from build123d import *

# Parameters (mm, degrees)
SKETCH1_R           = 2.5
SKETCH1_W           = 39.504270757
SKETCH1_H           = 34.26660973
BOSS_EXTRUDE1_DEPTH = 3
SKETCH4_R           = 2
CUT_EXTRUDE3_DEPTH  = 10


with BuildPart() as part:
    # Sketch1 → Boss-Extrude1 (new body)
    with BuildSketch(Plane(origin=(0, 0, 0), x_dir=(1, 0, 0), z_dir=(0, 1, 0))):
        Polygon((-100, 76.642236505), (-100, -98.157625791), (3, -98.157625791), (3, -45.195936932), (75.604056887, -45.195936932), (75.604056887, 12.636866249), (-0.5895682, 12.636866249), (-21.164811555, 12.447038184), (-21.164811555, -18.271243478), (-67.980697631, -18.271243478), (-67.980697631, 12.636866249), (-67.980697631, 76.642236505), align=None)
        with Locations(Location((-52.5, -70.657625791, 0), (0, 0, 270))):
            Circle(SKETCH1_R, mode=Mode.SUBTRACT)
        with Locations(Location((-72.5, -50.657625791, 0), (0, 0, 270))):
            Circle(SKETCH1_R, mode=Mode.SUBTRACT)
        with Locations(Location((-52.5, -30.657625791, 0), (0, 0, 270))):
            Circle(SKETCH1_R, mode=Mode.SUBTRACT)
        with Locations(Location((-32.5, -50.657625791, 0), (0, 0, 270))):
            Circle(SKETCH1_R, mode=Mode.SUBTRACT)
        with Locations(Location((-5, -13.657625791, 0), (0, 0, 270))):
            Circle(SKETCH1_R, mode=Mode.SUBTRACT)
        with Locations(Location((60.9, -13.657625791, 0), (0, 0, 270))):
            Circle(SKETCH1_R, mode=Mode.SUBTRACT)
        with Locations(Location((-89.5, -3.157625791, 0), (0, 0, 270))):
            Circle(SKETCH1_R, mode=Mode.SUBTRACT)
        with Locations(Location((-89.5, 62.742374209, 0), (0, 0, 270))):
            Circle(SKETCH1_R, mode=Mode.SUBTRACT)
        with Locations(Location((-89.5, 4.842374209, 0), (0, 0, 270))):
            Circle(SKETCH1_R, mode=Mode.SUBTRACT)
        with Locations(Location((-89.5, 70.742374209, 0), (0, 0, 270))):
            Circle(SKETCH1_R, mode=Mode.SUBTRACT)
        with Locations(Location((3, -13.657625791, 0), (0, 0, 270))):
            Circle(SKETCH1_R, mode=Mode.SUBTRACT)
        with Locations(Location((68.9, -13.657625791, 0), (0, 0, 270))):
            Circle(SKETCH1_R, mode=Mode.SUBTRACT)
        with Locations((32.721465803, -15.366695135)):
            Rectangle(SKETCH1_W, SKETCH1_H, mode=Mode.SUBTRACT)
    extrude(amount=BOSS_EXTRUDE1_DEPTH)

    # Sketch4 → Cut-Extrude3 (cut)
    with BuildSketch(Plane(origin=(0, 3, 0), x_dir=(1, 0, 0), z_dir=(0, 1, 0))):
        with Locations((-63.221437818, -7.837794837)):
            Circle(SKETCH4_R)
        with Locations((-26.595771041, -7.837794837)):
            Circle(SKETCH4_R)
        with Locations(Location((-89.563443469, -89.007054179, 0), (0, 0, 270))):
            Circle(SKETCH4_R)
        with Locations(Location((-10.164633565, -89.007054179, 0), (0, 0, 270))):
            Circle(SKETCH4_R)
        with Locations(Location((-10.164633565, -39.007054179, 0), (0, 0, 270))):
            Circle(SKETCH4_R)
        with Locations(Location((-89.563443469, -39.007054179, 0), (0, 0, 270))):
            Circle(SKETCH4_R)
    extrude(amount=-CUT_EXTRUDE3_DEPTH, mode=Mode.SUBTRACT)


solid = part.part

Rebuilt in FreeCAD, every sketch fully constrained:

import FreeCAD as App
import Part
import Sketcher

V = App.Vector

doc = App.newDocument("Part")
body = doc.addObject("PartDesign::Body", "Body")

sketch1 = body.newObject("Sketcher::SketchObject", "Sketch")
sketch1.AttachmentSupport = (doc.getObject("XZ_Plane"), [""])
sketch1.MapMode = "FlatFace"
sketch1.addGeometry(Part.LineSegment(V(-100, -76.642237, 0), V(-100, 98.157626, 0)), False)
sketch1.addGeometry(Part.LineSegment(V(-100, 98.157626, 0), V(3, 98.157626, 0)), False)
sketch1.addGeometry(Part.LineSegment(V(3, 98.157626, 0), V(3, 45.195937, 0)), False)
sketch1.addGeometry(Part.LineSegment(V(3, 45.195937, 0), V(75.604057, 45.195937, 0)), False)
sketch1.addGeometry(Part.LineSegment(V(75.604057, 45.195937, 0), V(75.604057, -12.636866, 0)), False)
sketch1.addGeometry(Part.LineSegment(V(75.604057, -12.636866, 0), V(-0.589568, -12.636866, 0)), False)
sketch1.addGeometry(Part.LineSegment(V(-0.589568, -12.636866, 0), V(-21.164812, -12.447038, 0)), False)
sketch1.addGeometry(Part.LineSegment(V(-21.164812, -12.447038, 0), V(-21.164812, 18.271243, 0)), False)
sketch1.addGeometry(Part.LineSegment(V(-21.164812, 18.271243, 0), V(-67.980698, 18.271243, 0)), False)
sketch1.addGeometry(Part.LineSegment(V(-67.980698, 18.271243, 0), V(-67.980698, -76.642237, 0)), False)
sketch1.addGeometry(Part.LineSegment(V(-67.980698, -76.642237, 0), V(-100, -76.642237, 0)), False)
sketch1.addGeometry(Part.Circle(V(-52.5, 70.657626, 0), V(0, 0, 1), 2.5), False)
sketch1.addGeometry(Part.Circle(V(-72.5, 50.657626, 0), V(0, 0, 1), 2.5), False)
sketch1.addGeometry(Part.Circle(V(-32.5, 50.657626, 0), V(0, 0, 1), 2.5), False)
sketch1.addGeometry(Part.Circle(V(-52.5, 30.657626, 0), V(0, 0, 1), 2.5), False)
sketch1.addGeometry(Part.Circle(V(-89.5, 3.157626, 0), V(0, 0, 1), 2.5), False)
sketch1.addGeometry(Part.Circle(V(-5, 13.657626, 0), V(0, 0, 1), 2.5), False)
sketch1.addGeometry(Part.Circle(V(3, 13.657626, 0), V(0, 0, 1), 2.5), False)
sketch1.addGeometry(Part.LineSegment(V(52.473601, 32.5, 0), V(12.96933, 32.5, 0)), False)
sketch1.addGeometry(Part.LineSegment(V(12.96933, 32.5, 0), V(12.96933, -1.76661, 0)), False)
sketch1.addGeometry(Part.LineSegment(V(12.96933, -1.76661, 0), V(52.473601, -1.76661, 0)), False)
sketch1.addGeometry(Part.LineSegment(V(52.473601, -1.76661, 0), V(52.473601, 32.5, 0)), False)
sketch1.addGeometry(Part.Circle(V(60.9, 13.657626, 0), V(0, 0, 1), 2.5), False)
sketch1.addGeometry(Part.Circle(V(68.9, 13.657626, 0), V(0, 0, 1), 2.5), False)
sketch1.addGeometry(Part.Circle(V(-89.5, -4.842374, 0), V(0, 0, 1), 2.5), False)
sketch1.addGeometry(Part.Circle(V(-89.5, -62.742374, 0), V(0, 0, 1), 2.5), False)
sketch1.addGeometry(Part.Circle(V(-89.5, -70.742374, 0), V(0, 0, 1), 2.5), False)
sketch1.addConstraint(Sketcher.Constraint("Coincident", 0, 2, 1, 1))
sketch1.addConstraint(Sketcher.Constraint("Coincident", 1, 2, 2, 1))
sketch1.addConstraint(Sketcher.Constraint("Coincident", 2, 2, 3, 1))
sketch1.addConstraint(Sketcher.Constraint("Coincident", 3, 2, 4, 1))
sketch1.addConstraint(Sketcher.Constraint("Coincident", 4, 2, 5, 1))
sketch1.addConstraint(Sketcher.Constraint("Coincident", 5, 2, 6, 1))
sketch1.addConstraint(Sketcher.Constraint("Coincident", 6, 2, 7, 1))
sketch1.addConstraint(Sketcher.Constraint("Coincident", 7, 2, 8, 1))
sketch1.addConstraint(Sketcher.Constraint("Coincident", 8, 2, 9, 1))
sketch1.addConstraint(Sketcher.Constraint("Coincident", 9, 2, 10, 1))
sketch1.addConstraint(Sketcher.Constraint("Coincident", 10, 2, 0, 1))
sketch1.addConstraint(Sketcher.Constraint("Coincident", 18, 2, 19, 1))
sketch1.addConstraint(Sketcher.Constraint("Coincident", 19, 2, 20, 1))
sketch1.addConstraint(Sketcher.Constraint("Coincident", 20, 2, 21, 1))
sketch1.addConstraint(Sketcher.Constraint("Coincident", 21, 2, 18, 1))
sketch1.addConstraint(Sketcher.Constraint("Vertical", 0))
sketch1.addConstraint(Sketcher.Constraint("Horizontal", 1))
sketch1.addConstraint(Sketcher.Constraint("Vertical", 2))
sketch1.addConstraint(Sketcher.Constraint("Horizontal", 3))
sketch1.addConstraint(Sketcher.Constraint("Vertical", 4))
sketch1.addConstraint(Sketcher.Constraint("Horizontal", 5))
sketch1.addConstraint(Sketcher.Constraint("Vertical", 7))
sketch1.addConstraint(Sketcher.Constraint("Horizontal", 8))
sketch1.addConstraint(Sketcher.Constraint("Vertical", 9))
sketch1.addConstraint(Sketcher.Constraint("Horizontal", 10))
sketch1.addConstraint(Sketcher.Constraint("Horizontal", 18))
sketch1.addConstraint(Sketcher.Constraint("Vertical", 19))
sketch1.addConstraint(Sketcher.Constraint("Horizontal", 20))
sketch1.addConstraint(Sketcher.Constraint("Vertical", 21))
sketch1.addConstraint(Sketcher.Constraint("Equal", 11, 12))
sketch1.addConstraint(Sketcher.Constraint("Equal", 12, 13))
sketch1.addConstraint(Sketcher.Constraint("Equal", 13, 14))
sketch1.addConstraint(Sketcher.Constraint("Equal", 14, 15))
sketch1.addConstraint(Sketcher.Constraint("Equal", 15, 16))
sketch1.addConstraint(Sketcher.Constraint("Equal", 16, 17))
sketch1.addConstraint(Sketcher.Constraint("Equal", 17, 22))
sketch1.addConstraint(Sketcher.Constraint("Equal", 22, 23))
sketch1.addConstraint(Sketcher.Constraint("Equal", 23, 24))
sketch1.addConstraint(Sketcher.Constraint("Equal", 24, 25))
sketch1.addConstraint(Sketcher.Constraint("Equal", 25, 26))
sketch1.addConstraint(Sketcher.Constraint("Horizontal", 12, 3, 13, 3))
sketch1.addConstraint(Sketcher.Constraint("Horizontal", 16, 3, 17, 3))
sketch1.addConstraint(Sketcher.Constraint("Horizontal", 17, 3, 22, 3))
sketch1.addConstraint(Sketcher.Constraint("Horizontal", 22, 3, 23, 3))
sketch1.addConstraint(Sketcher.Constraint("Vertical", 11, 3, 14, 3))
sketch1.addConstraint(Sketcher.Constraint("Vertical", 15, 3, 24, 3))
sketch1.addConstraint(Sketcher.Constraint("Vertical", 24, 3, 25, 3))
sketch1.addConstraint(Sketcher.Constraint("Vertical", 25, 3, 26, 3))
sketch1.addConstraint(Sketcher.Constraint("Vertical", 17, 3, 1, 2))
sketch1.addConstraint(Sketcher.Constraint("Diameter", 11, 5.0))
sketch1.addConstraint(Sketcher.Constraint("DistanceX", 1, 1, 1, 2, 103.0))
sketch1.addConstraint(Sketcher.Constraint("DistanceX", 16, 3, -1, 1, 5.0))
sketch1.addConstraint(Sketcher.Constraint("DistanceX", -1, 1, 17, 3, 3.0))
sketch1.addConstraint(Sketcher.Constraint("DistanceX", 12, 3, 11, 3, 20.0))
sketch1.addConstraint(Sketcher.Constraint("DistanceY", 12, 3, 11, 3, 20.0))
sketch1.addConstraint(Sketcher.Constraint("DistanceX", 11, 3, 13, 3, 20.0))
sketch1.addConstraint(Sketcher.Constraint("DistanceY", 14, 3, 12, 3, 20.0))
sketch1.addConstraint(Sketcher.Constraint("DistanceX", 15, 3, 14, 3, 37.0))
sketch1.addConstraint(Sketcher.Constraint("DistanceY", 16, 3, 13, 3, 37.0))
sketch1.addConstraint(Sketcher.Constraint("DistanceX", 22, 3, 23, 3, 8.0))
sketch1.addConstraint(Sketcher.Constraint("DistanceY", 24, 3, 15, 3, 8.0))
sketch1.addConstraint(Sketcher.Constraint("DistanceY", 26, 3, 25, 3, 8.0))
sketch1.addConstraint(Sketcher.Constraint("DistanceY", 15, 3, 0, 2, 95.0))
sketch1.addConstraint(Sketcher.Constraint("DistanceX", 11, 3, -1, 1, 52.5))
sketch1.addConstraint(Sketcher.Constraint("DistanceX", -1, 1, 22, 3, 60.9))
sketch1.addConstraint(Sketcher.Constraint("DistanceY", -1, 1, 18, 2, 32.5))
sketch1.addConstraint(Sketcher.Constraint("DistanceY", 15, 3, 14, 3, 27.5))
sketch1.addConstraint(Sketcher.Constraint("DistanceY", 25, 3, 24, 3, 57.9))
sketch1.addConstraint(Sketcher.Constraint("DistanceX", 18, 2, 18, 1, 39.504271))
sketch1.addConstraint(Sketcher.Constraint("DistanceY", 2, 2, 2, 1, 52.961689))
sketch1.addConstraint(Sketcher.Constraint("DistanceY", 7, 1, 7, 2, 30.718282))
sketch1.addConstraint(Sketcher.Constraint("DistanceY", 9, 2, 9, 1, 94.91348))
sketch1.addConstraint(Sketcher.Constraint("DistanceY", 19, 2, 19, 1, 34.26661))
sketch1.addConstraint(Sketcher.Constraint("DistanceX", -1, 1, 20, 2, 52.473601))
sketch1.addConstraint(Sketcher.Constraint("DistanceX", 5, 2, 18, 2, 13.558899))
sketch1.addConstraint(Sketcher.Constraint("Distance", 6, 20.576119))
sketch1.addConstraint(Sketcher.Constraint("DistanceX", 3, 1, 3, 2, 72.604057))
sketch1.addConstraint(Sketcher.Constraint("DistanceX", 8, 2, 8, 1, 46.815886))
sketch1.addConstraint(Sketcher.Constraint("DistanceX", 10, 2, 10, 1, 32.019302))
sketch1.addConstraint(Sketcher.Constraint("DistanceY", 0, 1, 0, 2, 174.799862))
sketch1.addConstraint(Sketcher.Constraint("DistanceY", 6, 2, -1, 1, 12.447038))
pad1 = body.newObject("PartDesign::Pad", "Pad")
pad1.Profile = sketch1
pad1.Length = 3
pad1.Reversed = True

sketch2 = body.newObject("Sketcher::SketchObject", "Sketch001")
sketch2.AttachmentSupport = (doc.getObject("XZ_Plane"), [""])
sketch2.MapMode = "FlatFace"
sketch2.AttachmentOffset = App.Placement(V(0, 0, -3), App.Rotation())
sketch2.addGeometry(Part.Circle(V(-63.2, 7.8, 0), V(0, 0, 1), 2), False)
sketch2.addGeometry(Part.Circle(V(-26.6, 7.8, 0), V(0, 0, 1), 2), False)
sketch2.addGeometry(Part.Circle(V(-89.6, 89, 0), V(0, 0, 1), 2), False)
sketch2.addGeometry(Part.Circle(V(-10.2, 89, 0), V(0, 0, 1), 2), False)
sketch2.addGeometry(Part.Circle(V(-10.2, 39, 0), V(0, 0, 1), 2), False)
sketch2.addGeometry(Part.Circle(V(-89.6, 39, 0), V(0, 0, 1), 2), False)
sketch2.addConstraint(Sketcher.Constraint("Equal", 0, 1))
sketch2.addConstraint(Sketcher.Constraint("Equal", 1, 2))
sketch2.addConstraint(Sketcher.Constraint("Equal", 2, 3))
sketch2.addConstraint(Sketcher.Constraint("Equal", 3, 4))
sketch2.addConstraint(Sketcher.Constraint("Equal", 4, 5))
sketch2.addConstraint(Sketcher.Constraint("Horizontal", 0, 3, 1, 3))
sketch2.addConstraint(Sketcher.Constraint("Horizontal", 2, 3, 3, 3))
sketch2.addConstraint(Sketcher.Constraint("Horizontal", 4, 3, 5, 3))
sketch2.addConstraint(Sketcher.Constraint("Vertical", 3, 3, 4, 3))
sketch2.addConstraint(Sketcher.Constraint("Vertical", 2, 3, 5, 3))
sketch2.addConstraint(Sketcher.Constraint("Diameter", 0, 4.0))
sketch2.addConstraint(Sketcher.Constraint("DistanceY", 4, 3, 3, 3, 50.0))
sketch2.addConstraint(Sketcher.Constraint("DistanceX", 1, 3, -1, 1, 26.595771))
sketch2.addConstraint(Sketcher.Constraint("DistanceY", 0, 3, 2, 3, 81.169259))
sketch2.addConstraint(Sketcher.Constraint("DistanceX", 2, 3, 3, 3, 79.39881))
sketch2.addConstraint(Sketcher.Constraint("DistanceX", 0, 3, -1, 1, 63.221438))
sketch2.addConstraint(Sketcher.Constraint("DistanceY", -1, 1, 0, 3, 7.837795))
sketch2.addConstraint(Sketcher.Constraint("DistanceX", 2, 3, -1, 1, 89.563443))
pocket1 = body.newObject("PartDesign::Pocket", "Pocket")
pocket1.Profile = sketch2
pocket1.Length = 10
pocket1.Reversed = True

doc.recompute()
